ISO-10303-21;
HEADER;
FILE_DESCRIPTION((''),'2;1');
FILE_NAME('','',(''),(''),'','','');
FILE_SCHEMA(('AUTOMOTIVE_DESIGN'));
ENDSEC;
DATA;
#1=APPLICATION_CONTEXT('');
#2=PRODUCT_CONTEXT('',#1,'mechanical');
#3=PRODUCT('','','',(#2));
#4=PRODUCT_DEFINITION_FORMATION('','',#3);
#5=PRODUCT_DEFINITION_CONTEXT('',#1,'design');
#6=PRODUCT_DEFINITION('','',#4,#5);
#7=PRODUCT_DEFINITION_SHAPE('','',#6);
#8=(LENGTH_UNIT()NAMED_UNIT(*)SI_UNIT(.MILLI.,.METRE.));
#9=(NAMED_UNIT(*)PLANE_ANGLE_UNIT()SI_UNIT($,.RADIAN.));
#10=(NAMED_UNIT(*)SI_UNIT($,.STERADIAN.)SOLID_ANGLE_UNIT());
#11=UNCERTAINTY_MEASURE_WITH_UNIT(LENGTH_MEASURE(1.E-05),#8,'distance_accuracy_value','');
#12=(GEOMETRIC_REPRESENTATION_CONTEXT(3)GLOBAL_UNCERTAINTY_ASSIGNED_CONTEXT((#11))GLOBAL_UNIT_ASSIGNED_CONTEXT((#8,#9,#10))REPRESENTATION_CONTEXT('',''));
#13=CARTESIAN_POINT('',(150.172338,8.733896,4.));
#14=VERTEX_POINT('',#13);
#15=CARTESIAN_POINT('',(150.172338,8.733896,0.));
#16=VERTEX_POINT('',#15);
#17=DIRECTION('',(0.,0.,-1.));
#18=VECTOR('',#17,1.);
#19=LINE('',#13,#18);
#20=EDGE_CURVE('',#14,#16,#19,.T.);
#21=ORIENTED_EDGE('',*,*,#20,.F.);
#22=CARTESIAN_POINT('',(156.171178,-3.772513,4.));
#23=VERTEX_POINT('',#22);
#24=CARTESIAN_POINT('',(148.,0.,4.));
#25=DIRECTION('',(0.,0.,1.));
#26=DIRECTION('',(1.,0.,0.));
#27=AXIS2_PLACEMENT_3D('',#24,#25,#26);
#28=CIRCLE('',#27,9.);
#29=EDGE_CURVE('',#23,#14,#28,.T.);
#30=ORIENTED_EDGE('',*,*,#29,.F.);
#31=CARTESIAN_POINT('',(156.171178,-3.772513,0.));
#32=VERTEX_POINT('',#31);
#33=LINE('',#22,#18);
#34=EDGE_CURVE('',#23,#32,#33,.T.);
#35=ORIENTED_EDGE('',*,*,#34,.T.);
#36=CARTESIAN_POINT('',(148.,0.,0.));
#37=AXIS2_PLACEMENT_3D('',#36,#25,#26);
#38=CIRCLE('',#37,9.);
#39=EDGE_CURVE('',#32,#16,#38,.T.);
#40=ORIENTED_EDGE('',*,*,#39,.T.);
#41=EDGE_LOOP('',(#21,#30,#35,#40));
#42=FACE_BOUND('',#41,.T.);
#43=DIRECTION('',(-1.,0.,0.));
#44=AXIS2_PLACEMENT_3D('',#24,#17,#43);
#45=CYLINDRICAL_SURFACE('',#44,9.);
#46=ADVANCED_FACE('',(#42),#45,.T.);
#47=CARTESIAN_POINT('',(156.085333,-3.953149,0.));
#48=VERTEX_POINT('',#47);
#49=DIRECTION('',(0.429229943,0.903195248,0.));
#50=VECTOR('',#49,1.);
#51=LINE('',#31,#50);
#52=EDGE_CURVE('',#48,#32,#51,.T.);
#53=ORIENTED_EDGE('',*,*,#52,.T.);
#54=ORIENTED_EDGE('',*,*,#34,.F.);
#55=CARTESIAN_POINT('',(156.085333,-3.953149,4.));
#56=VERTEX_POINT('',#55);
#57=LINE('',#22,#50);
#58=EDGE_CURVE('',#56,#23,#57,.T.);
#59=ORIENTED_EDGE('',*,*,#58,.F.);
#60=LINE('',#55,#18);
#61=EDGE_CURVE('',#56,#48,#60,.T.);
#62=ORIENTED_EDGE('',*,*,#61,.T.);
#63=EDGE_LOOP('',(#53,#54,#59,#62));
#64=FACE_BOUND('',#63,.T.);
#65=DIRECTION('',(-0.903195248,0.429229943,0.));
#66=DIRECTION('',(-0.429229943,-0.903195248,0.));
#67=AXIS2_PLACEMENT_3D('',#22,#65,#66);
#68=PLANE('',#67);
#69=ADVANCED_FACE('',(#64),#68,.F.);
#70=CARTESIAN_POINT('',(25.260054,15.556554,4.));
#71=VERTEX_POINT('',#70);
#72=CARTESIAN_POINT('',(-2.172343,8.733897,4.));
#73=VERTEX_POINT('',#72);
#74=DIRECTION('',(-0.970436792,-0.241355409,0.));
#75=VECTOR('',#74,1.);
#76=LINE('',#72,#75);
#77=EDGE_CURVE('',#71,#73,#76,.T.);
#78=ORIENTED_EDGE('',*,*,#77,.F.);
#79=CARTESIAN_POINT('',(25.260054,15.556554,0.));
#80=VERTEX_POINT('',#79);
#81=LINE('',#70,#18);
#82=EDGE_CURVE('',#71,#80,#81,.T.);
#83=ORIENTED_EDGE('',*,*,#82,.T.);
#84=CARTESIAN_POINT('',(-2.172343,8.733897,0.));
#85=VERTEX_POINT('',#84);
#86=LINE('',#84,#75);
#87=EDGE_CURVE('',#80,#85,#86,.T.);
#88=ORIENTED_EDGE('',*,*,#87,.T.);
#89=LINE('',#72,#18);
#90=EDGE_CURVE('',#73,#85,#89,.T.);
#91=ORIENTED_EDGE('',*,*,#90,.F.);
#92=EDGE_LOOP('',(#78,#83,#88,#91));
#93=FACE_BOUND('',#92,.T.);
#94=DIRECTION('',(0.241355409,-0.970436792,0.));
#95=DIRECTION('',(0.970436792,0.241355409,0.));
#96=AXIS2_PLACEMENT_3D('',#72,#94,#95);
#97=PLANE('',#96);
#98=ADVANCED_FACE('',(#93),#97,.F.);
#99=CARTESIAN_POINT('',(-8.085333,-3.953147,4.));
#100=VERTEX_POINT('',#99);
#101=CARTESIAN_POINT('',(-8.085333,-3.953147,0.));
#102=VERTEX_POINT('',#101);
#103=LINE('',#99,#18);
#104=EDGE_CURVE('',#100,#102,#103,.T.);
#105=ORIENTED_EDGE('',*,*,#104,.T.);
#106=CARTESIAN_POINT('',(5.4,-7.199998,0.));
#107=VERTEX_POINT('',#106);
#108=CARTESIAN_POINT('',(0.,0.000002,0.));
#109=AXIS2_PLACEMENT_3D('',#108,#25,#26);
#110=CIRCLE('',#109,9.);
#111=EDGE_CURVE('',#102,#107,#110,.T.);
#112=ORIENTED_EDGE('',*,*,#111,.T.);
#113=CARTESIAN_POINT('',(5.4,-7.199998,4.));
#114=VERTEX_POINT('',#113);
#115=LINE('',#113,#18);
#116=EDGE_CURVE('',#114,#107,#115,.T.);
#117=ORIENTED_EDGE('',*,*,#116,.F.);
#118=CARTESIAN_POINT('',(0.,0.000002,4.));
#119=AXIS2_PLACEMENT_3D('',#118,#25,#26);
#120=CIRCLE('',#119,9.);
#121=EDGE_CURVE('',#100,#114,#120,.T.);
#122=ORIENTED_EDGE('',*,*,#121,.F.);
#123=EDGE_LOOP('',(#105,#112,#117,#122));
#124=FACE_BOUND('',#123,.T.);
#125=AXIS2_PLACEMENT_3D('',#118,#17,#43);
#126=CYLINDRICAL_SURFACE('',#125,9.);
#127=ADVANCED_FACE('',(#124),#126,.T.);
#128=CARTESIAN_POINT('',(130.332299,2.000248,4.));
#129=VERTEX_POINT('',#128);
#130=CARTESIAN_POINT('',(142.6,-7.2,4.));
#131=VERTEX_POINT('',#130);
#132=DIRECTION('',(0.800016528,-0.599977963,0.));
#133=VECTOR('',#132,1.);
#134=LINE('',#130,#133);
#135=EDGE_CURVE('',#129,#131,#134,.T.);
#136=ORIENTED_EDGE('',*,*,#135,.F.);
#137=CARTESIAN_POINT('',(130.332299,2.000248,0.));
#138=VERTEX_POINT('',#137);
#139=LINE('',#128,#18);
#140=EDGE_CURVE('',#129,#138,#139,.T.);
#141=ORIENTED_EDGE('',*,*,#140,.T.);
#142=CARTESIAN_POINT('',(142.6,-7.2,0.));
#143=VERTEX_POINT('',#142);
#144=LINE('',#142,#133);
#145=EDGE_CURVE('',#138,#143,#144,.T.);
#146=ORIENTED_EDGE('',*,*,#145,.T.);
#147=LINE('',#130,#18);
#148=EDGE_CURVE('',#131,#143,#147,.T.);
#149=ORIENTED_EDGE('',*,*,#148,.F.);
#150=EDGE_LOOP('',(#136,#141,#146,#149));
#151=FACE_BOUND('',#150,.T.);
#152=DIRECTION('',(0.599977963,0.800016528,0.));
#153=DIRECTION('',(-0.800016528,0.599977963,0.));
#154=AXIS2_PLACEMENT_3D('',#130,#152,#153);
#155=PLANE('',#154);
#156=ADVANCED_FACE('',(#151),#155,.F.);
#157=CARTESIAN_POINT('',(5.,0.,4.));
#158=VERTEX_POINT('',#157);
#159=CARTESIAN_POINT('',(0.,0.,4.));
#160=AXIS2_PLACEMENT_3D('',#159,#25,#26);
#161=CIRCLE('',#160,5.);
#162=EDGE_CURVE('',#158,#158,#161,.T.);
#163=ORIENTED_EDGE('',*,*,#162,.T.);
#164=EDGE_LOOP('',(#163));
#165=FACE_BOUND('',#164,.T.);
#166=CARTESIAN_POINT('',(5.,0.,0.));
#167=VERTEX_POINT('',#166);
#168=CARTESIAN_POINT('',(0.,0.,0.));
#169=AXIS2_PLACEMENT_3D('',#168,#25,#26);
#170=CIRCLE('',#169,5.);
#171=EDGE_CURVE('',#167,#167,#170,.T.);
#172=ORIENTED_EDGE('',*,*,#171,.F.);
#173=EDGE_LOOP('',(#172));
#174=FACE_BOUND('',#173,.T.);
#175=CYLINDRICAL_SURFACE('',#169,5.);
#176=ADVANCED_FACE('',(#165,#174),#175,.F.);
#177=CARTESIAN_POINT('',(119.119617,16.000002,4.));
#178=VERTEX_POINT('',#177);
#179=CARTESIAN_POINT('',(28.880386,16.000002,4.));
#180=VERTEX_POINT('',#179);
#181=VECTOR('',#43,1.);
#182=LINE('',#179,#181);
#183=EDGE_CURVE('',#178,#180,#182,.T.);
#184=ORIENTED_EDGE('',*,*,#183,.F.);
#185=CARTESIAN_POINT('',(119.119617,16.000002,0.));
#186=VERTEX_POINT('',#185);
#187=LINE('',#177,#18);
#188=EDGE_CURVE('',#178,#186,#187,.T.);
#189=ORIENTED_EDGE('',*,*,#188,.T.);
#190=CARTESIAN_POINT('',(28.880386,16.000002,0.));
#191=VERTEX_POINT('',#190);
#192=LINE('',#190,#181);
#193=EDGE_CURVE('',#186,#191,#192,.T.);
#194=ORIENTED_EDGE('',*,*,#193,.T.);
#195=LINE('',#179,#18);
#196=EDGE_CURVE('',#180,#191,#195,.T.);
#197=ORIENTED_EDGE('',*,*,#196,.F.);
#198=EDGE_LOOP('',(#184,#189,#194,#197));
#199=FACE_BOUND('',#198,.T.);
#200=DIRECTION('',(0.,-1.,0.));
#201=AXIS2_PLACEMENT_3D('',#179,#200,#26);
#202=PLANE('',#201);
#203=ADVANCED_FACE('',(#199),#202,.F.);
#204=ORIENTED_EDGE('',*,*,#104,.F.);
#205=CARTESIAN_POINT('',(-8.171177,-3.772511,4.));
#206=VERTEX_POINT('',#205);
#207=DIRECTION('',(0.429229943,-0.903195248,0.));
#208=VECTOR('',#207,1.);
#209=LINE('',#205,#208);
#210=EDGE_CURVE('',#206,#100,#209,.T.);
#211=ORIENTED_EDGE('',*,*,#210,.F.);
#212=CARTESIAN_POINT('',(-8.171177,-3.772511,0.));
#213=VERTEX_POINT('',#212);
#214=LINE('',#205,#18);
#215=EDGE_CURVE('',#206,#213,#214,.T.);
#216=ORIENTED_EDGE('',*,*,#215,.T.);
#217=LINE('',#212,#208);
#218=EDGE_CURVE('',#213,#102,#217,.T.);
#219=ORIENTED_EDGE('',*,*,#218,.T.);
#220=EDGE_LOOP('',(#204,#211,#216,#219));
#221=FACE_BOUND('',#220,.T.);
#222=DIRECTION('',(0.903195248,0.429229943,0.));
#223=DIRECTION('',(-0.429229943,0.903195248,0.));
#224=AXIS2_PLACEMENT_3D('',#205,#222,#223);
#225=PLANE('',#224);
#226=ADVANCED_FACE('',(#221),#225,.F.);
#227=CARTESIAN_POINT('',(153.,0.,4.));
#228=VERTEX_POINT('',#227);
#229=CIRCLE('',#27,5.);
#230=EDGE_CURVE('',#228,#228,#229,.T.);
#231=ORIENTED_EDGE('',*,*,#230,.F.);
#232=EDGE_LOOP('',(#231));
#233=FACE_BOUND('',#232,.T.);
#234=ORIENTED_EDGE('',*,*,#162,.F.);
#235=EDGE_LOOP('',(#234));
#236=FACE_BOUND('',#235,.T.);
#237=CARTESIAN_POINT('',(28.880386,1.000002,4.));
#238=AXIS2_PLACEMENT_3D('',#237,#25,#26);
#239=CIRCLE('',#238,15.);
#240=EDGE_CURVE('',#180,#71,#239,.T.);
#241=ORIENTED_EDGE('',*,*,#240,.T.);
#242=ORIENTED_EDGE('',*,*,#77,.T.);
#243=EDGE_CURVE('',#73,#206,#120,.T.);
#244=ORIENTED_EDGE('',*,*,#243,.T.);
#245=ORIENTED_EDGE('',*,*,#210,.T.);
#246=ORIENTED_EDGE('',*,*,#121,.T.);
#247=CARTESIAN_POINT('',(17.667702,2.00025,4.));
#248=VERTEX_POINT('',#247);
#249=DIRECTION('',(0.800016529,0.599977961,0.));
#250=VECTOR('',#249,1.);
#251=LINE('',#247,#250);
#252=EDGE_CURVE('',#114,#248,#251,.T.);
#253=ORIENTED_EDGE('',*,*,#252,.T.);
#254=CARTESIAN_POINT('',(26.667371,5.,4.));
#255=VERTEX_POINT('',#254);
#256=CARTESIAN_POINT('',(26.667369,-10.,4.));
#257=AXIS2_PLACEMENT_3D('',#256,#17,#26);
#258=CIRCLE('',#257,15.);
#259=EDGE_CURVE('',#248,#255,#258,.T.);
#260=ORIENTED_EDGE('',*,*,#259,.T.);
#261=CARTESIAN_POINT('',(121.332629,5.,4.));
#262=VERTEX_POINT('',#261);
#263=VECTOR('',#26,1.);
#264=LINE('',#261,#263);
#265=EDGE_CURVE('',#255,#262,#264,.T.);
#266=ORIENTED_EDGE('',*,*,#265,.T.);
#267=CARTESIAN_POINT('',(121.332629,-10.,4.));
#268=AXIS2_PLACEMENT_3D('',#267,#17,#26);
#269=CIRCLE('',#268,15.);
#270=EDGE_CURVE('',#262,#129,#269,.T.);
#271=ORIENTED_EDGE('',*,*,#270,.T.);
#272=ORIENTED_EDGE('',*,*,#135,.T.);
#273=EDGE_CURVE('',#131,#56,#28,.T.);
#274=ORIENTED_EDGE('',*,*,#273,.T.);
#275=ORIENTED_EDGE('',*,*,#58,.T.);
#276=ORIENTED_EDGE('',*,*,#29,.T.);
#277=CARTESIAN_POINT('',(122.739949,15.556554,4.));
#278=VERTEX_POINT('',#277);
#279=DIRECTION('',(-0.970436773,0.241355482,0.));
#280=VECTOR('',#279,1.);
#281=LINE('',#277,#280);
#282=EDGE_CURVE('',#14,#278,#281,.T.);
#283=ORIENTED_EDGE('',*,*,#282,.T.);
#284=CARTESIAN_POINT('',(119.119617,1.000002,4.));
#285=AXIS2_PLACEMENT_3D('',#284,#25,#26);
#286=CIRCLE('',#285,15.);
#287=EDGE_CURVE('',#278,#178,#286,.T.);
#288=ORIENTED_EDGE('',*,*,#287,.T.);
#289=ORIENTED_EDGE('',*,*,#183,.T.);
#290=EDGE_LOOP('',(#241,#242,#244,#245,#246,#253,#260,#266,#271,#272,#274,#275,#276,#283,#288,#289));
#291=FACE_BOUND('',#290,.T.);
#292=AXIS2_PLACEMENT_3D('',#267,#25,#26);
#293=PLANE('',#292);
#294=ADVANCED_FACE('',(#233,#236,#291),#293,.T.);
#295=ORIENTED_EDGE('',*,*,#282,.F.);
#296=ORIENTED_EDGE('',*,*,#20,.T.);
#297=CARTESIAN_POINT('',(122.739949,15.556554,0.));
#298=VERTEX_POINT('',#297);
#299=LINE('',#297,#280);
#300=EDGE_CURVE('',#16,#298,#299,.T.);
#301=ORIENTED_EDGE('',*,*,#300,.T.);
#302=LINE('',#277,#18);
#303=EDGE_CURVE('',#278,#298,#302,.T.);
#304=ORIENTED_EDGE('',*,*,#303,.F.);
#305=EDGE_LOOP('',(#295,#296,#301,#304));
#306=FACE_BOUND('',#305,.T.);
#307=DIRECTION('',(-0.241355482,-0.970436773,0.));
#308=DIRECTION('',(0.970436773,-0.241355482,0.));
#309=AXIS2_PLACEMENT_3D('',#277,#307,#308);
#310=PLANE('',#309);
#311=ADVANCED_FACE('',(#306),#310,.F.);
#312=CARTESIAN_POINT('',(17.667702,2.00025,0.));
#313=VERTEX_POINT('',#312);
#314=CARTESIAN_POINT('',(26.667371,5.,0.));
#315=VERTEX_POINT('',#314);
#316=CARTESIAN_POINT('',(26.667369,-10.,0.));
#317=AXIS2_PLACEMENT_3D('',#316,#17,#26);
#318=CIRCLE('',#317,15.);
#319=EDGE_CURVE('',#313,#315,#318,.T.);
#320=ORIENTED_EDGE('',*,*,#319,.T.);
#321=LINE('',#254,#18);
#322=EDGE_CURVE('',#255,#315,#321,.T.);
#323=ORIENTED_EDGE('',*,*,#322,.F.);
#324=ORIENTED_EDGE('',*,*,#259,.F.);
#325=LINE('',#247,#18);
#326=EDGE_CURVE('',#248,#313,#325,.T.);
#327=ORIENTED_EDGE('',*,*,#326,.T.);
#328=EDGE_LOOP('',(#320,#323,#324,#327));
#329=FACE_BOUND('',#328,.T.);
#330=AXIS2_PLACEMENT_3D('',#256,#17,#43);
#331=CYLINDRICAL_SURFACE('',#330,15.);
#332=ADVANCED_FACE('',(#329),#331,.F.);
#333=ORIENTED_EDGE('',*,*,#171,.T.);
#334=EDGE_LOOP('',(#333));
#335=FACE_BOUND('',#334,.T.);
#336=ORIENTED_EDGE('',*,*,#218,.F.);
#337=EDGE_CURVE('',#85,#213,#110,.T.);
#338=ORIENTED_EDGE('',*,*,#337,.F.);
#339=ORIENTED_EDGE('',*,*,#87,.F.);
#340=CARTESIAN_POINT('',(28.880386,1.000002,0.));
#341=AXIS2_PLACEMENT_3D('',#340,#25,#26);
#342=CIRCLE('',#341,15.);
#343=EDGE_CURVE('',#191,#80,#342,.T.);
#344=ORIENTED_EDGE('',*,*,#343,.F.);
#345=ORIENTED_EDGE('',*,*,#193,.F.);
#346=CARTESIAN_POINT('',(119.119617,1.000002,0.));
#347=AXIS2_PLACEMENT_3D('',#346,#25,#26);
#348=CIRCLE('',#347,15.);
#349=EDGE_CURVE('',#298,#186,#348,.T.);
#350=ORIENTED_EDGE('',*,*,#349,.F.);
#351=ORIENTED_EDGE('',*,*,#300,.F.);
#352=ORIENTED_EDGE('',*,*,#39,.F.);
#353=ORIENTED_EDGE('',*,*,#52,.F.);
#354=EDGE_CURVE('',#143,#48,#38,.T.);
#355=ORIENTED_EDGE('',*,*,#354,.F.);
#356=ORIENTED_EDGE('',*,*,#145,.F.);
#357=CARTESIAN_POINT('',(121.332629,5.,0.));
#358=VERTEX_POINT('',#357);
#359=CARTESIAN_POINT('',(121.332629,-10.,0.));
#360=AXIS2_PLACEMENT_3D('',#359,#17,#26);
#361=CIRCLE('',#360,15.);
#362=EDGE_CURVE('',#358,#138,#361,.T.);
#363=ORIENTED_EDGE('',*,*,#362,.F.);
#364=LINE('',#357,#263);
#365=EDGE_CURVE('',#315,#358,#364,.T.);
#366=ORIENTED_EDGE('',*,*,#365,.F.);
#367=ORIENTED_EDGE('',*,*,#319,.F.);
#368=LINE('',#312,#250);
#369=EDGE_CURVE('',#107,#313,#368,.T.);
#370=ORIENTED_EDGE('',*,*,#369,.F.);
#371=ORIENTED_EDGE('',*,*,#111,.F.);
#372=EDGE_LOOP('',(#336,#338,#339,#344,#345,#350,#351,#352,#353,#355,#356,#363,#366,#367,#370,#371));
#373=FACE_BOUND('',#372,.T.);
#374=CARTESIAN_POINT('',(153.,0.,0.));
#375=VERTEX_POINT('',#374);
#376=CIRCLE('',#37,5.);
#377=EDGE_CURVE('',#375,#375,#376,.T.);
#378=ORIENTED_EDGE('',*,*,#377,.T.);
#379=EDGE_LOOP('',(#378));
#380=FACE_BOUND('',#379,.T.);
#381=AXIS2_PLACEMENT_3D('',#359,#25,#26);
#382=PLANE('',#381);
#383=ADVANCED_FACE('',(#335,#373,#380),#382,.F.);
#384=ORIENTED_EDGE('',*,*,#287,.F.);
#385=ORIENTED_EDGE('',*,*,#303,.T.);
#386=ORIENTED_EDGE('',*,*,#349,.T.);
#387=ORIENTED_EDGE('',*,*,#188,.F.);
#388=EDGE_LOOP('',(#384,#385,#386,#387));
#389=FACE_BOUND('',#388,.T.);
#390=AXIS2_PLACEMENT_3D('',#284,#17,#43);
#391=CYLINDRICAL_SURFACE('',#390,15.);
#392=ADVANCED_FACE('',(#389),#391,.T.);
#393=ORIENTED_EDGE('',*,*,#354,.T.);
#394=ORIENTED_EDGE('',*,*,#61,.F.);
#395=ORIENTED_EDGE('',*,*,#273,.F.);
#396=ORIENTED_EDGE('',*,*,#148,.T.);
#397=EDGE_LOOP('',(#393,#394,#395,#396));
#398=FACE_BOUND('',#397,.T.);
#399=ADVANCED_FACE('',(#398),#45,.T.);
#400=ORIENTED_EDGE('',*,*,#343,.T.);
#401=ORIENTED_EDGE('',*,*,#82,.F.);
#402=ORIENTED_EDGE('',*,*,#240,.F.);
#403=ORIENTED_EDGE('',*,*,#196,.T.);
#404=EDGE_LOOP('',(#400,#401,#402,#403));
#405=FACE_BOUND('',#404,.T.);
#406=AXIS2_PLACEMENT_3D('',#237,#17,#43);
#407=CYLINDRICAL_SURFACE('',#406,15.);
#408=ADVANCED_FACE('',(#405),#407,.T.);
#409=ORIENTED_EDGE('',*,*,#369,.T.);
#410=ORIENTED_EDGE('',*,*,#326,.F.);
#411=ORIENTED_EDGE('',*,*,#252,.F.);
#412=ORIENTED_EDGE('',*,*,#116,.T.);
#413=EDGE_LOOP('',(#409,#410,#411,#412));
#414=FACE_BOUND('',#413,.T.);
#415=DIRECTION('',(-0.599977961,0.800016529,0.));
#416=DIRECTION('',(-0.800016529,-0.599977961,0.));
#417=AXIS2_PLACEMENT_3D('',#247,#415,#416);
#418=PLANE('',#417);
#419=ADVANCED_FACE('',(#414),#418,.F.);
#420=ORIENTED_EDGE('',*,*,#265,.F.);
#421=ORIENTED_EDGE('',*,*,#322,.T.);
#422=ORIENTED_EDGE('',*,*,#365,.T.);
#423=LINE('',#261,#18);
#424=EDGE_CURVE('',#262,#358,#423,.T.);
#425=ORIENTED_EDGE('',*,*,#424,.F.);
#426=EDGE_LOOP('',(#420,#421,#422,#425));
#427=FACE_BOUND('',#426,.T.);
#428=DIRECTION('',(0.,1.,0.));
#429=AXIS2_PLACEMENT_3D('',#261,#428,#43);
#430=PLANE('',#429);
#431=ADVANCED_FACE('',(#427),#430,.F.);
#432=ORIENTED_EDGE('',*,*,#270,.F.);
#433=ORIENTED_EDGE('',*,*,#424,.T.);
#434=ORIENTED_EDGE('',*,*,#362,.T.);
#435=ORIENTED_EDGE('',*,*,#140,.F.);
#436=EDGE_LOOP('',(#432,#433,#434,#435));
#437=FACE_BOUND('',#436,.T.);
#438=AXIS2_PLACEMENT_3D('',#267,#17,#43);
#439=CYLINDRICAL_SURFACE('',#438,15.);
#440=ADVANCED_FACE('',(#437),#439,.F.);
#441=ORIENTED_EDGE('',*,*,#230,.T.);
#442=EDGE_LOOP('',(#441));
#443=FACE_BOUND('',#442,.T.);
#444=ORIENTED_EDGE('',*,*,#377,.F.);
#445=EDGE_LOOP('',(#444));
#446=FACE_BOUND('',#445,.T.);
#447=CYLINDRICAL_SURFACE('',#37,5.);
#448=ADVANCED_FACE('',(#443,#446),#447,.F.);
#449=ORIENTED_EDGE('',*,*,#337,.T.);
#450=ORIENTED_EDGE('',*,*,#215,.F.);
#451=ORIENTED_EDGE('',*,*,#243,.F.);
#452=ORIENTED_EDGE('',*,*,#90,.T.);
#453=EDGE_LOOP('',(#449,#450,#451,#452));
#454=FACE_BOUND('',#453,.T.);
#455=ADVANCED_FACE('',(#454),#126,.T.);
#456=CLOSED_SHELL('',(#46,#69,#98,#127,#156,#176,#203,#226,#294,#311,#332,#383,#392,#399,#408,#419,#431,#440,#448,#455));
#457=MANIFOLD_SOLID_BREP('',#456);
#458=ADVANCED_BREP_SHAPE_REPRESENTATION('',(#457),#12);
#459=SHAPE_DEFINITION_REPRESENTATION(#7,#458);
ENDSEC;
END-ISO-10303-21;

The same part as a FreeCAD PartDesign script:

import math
import FreeCAD as App
import Part
import Sketcher
from FreeCAD import Vector

doc = App.newDocument("Part")
body = doc.addObject("PartDesign::Body", "Body")

sketch1 = body.newObject("Sketcher::SketchObject", "Sketch")
sketch1.AttachmentSupport = (doc.getObject("XY_Plane"), [""])
sketch1.MapMode = "FlatFace"
sketch1.addGeometry([
    Part.LineSegment(Vector(119.12, 16, 0), Vector(28.88, 16, 0)),
    Part.ArcOfCircle(Part.Circle(Vector(28.88, 1, 0), Vector(0, 0, 1), 15), math.radians(90), math.radians(103.97)),
    Part.LineSegment(Vector(25.26, 15.56, 0), Vector(-2.17, 8.73, 0)),
    Part.ArcOfCircle(Part.Circle(Vector(0, 0, 0), Vector(0, 0, 1), 9), math.radians(104), math.radians(205)),
    Part.LineSegment(Vector(-8.17, -3.77, 0), Vector(-8.09, -3.95, 0)),
    Part.ArcOfCircle(Part.Circle(Vector(0, 0, 0), Vector(0, 0, 1), 9), math.radians(-154), math.radians(-53)),
    Part.LineSegment(Vector(5.4, -7.2, 0), Vector(17.67, 2, 0)),
    Part.ArcOfCircle(Part.Circle(Vector(26.67, -10, 0), Vector(0, 0, 1), 15), math.radians(90), math.radians(127)),
    Part.LineSegment(Vector(26.67, 5, 0), Vector(121.33, 5, 0)),
    Part.ArcOfCircle(Part.Circle(Vector(121.33, -10, 0), Vector(0, 0, 1), 15), math.radians(53), math.radians(90)),
    Part.LineSegment(Vector(130.33, 2, 0), Vector(142.6, -7.2, 0)),
    Part.ArcOfCircle(Part.Circle(Vector(148, 0, 0), Vector(0, 0, 1), 9), math.radians(-127), math.radians(-26)),
    Part.LineSegment(Vector(156.09, -3.95, 0), Vector(156.17, -3.77, 0)),
    Part.ArcOfCircle(Part.Circle(Vector(148, 0, 0), Vector(0, 0, 1), 9), math.radians(-25), math.radians(76)),
    Part.LineSegment(Vector(150.17, 8.73, 0), Vector(122.74, 15.56, 0)),
    Part.ArcOfCircle(Part.Circle(Vector(119.12, 1, 0), Vector(0, 0, 1), 15), math.radians(76.03), math.radians(90)),
    Part.Circle(Vector(0, 0, 0), Vector(0, 0, 1), 4.4),
    Part.Circle(Vector(148, 0, 0), Vector(0, 0, 1), 4.4),
], False)
sketch1.addConstraint([
    Sketcher.Constraint("Tangent", 0, 2, 1, 1),
    Sketcher.Constraint("Tangent", 1, 2, 2, 1),
    Sketcher.Constraint("Coincident", 2, 2, 3, 1),
    Sketcher.Constraint("Coincident", 3, 2, 4, 1),
    Sketcher.Constraint("Coincident", 4, 2, 5, 1),
    Sketcher.Constraint("Coincident", 5, 2, 6, 1),
    Sketcher.Constraint("Tangent", 6, 2, 7, 2),
    Sketcher.Constraint("Tangent", 7, 1, 8, 1),
    Sketcher.Constraint("Tangent", 8, 2, 9, 2),
    Sketcher.Constraint("Tangent", 9, 1, 10, 1),
    Sketcher.Constraint("Coincident", 10, 2, 11, 1),
    Sketcher.Constraint("Coincident", 11, 2, 12, 1),
    Sketcher.Constraint("Coincident", 12, 2, 13, 1),
    Sketcher.Constraint("Coincident", 13, 2, 14, 1),
    Sketcher.Constraint("Tangent", 14, 2, 15, 1),
    Sketcher.Constraint("Tangent", 15, 2, 0, 1),
    Sketcher.Constraint("Horizontal", 0),
    Sketcher.Constraint("Horizontal", 8),
    Sketcher.Constraint("Coincident", 3, 3, -1, 1),
    Sketcher.Constraint("Coincident", 5, 3, -1, 1),
    Sketcher.Constraint("Coincident", 16, 3, -1, 1),
    Sketcher.Constraint("Coincident", 13, 3, 11, 3),
    Sketcher.Constraint("Coincident", 17, 3, 11, 3),
    Sketcher.Constraint("Equal", 3, 5),
    Sketcher.Constraint("Equal", 1, 7),
    Sketcher.Constraint("Equal", 7, 9),
    Sketcher.Constraint("Equal", 5, 11),
    Sketcher.Constraint("Equal", 11, 13),
    Sketcher.Constraint("Equal", 9, 15),
    Sketcher.Constraint("Equal", 16, 17),
    Sketcher.Constraint("PointOnObject", 11, 3, -1),
    Sketcher.Constraint("Horizontal", 6, 2, 9, 1),
    Sketcher.Constraint("Horizontal", 5, 2, 10, 2),
    Sketcher.Constraint("Horizontal", 4, 2, 11, 2),
    Sketcher.Constraint("Horizontal", 3, 2, 12, 2),
    Sketcher.Constraint("Horizontal", 2, 2, 13, 2),
    Sketcher.Constraint("Horizontal", 1, 2, 14, 2),
    Sketcher.Constraint("Radius", 1, 15.0),
    Sketcher.Constraint("Radius", 3, 9.0),
    Sketcher.Constraint("Diameter", 16, 8.8),
    Sketcher.Constraint("DistanceY", 7, 3, -1, 1, 10.0),
    Sketcher.Constraint("DistanceX", -1, 1, 11, 3, 148.0),
    Sketcher.Constraint("DistanceY", 3, 3, 1, 3, 1.0),
    Sketcher.Constraint("DistanceX", -1, 1, 5, 2, 5.4),
    Sketcher.Constraint("DistanceX", 0, 2, 0, 1, 90.239231),
    Sketcher.Constraint("DistanceX", 8, 1, 8, 2, 94.665259),
    Sketcher.Constraint("DistanceY", 3, 2, -1, 1, 3.772511),
    Sketcher.Constraint("DistanceY", 11, 2, -1, 1, 3.953149),
    Sketcher.Constraint("DistanceX", -1, 1, 13, 2, 150.172338),
])
pad1 = body.newObject("PartDesign::Pad", "Pad")
pad1.Profile = sketch1
pad1.Length = 4

sketch2 = body.newObject("Sketcher::SketchObject", "Sketch001")
sketch2.AttachmentSupport = (doc.getObject("XY_Plane"), [""])
sketch2.MapMode = "FlatFace"
sketch2.AttachmentOffset = App.Placement(Vector(0, 0, 4), App.Rotation())
sketch2.addGeometry([
    Part.Circle(Vector(0, 0, 0), Vector(0, 0, 1), 5),
    Part.Circle(Vector(148, 0, 0), Vector(0, 0, 1), 5),
], False)
sketch2.addConstraint([
    Sketcher.Constraint("Coincident", 0, 3, -1, 1),
    Sketcher.Constraint("Equal", 0, 1),
    Sketcher.Constraint("PointOnObject", 1, 3, -1),
    Sketcher.Constraint("Diameter", 0, 10.0),
    Sketcher.Constraint("DistanceX", -1, 1, 1, 3, 148.0),
])
pocket1 = body.newObject("PartDesign::Pocket", "Pocket")
pocket1.Profile = sketch2
pocket1.Type = "ThroughAll"

doc.recompute()
